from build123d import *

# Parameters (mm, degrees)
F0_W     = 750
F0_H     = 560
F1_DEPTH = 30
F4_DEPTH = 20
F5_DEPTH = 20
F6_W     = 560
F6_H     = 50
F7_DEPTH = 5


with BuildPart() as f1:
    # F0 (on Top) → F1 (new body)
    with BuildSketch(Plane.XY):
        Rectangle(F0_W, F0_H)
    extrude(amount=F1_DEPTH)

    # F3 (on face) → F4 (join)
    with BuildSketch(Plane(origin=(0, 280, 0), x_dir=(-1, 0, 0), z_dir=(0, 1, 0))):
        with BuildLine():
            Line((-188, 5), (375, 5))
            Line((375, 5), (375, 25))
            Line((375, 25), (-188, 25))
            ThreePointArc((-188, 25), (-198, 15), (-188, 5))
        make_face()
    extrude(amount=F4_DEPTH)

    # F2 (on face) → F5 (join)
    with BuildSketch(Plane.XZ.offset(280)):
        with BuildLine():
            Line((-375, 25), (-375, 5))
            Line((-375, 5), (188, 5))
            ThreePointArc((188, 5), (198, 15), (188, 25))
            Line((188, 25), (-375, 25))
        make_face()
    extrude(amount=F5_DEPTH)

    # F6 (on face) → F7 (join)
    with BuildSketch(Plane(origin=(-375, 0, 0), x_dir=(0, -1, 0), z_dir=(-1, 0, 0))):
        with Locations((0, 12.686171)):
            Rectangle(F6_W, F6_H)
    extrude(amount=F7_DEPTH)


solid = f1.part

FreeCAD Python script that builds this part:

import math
import FreeCAD as App
import Part
import Sketcher

doc = App.newDocument("Part")
params = doc.addObject("Spreadsheet::Sheet", "Params")
for row, (alias, value) in enumerate([
    ("sketch1_width", "750 mm"),
    ("sketch1_height", "560 mm"),
    ("pad1_length", "30 mm"),
    ("sketch2_radius", "10 mm"),
    ("sketch2_width", "563 mm"),
    ("pad2_length", "20 mm"),
    ("sketch3_radius", "10 mm"),
    ("sketch3_width", "563 mm"),
    ("pad3_length", "20 mm"),
    ("sketch4_width", "560 mm"),
    ("sketch4_height", "50 mm"),
    ("pad4_length", "5 mm"),
], start=1):
    params.set(f"A{row}", alias)
    params.set(f"B{row}", "=" + value)
    params.setAlias(f"B{row}", alias)

body = doc.addObject("PartDesign::Body", "Body")

# Sketch on XY plane
sketch1 = doc.addObject("Sketcher::SketchObject", "Sketch")
body.addObject(sketch1)
sketch1.AttachmentSupport = (doc.XY_Plane, [""])
sketch1.MapMode = "FlatFace"
sketch1.addGeometry([
    Part.LineSegment(App.Vector(-375, 280, 0), App.Vector(-375, -280, 0)),
    Part.LineSegment(App.Vector(-375, -280, 0), App.Vector(375, -280, 0)),
    Part.LineSegment(App.Vector(375, -280, 0), App.Vector(375, 280, 0)),
    Part.LineSegment(App.Vector(375, 280, 0), App.Vector(-375, 280, 0)),
], False)
sketch1.addConstraint([
    Sketcher.Constraint("Coincident", 0, 2, 1, 1),
    Sketcher.Constraint("Coincident", 1, 2, 2, 1),
    Sketcher.Constraint("Coincident", 2, 2, 3, 1),
    Sketcher.Constraint("Coincident", 3, 2, 0, 1),
    Sketcher.Constraint("Vertical", 0),
    Sketcher.Constraint("Horizontal", 1),
    Sketcher.Constraint("Vertical", 2),
    Sketcher.Constraint("Horizontal", 3),
    Sketcher.Constraint("Symmetric", 0, 2, 2, 2, -1, 1),
    Sketcher.Constraint("DistanceX", 1, 1, 1, 2, 750.0),
    Sketcher.Constraint("DistanceY", 0, 2, 0, 1, 560.0),
])
sketch1.setExpression("Constraints[9]", "Params.sketch1_width")
sketch1.setExpression("Constraints[10]", "Params.sketch1_height")
pad1 = doc.addObject("PartDesign::Pad", "Pad")
body.addObject(pad1)
pad1.Profile = sketch1
pad1.setExpression("Length", "Params.pad1_length")

# Sketch on XZ plane
sketch2 = doc.addObject("Sketcher::SketchObject", "Sketch001")
body.addObject(sketch2)
sketch2.AttachmentSupport = (doc.XZ_Plane, [""])
sketch2.MapMode = "FlatFace"
sketch2.AttachmentOffset = App.Placement(App.Vector(0, 0, -280), App.Rotation())
sketch2.addGeometry([
    Part.LineSegment(App.Vector(188, 5, 0), App.Vector(-375, 5, 0)),
    Part.LineSegment(App.Vector(-375, 5, 0), App.Vector(-375, 25, 0)),
    Part.LineSegment(App.Vector(-375, 25, 0), App.Vector(188, 25, 0)),
    Part.ArcOfCircle(Part.Circle(App.Vector(188, 15, 0), App.Vector(0, 0, 1), 10), math.radians(-90), math.radians(90)),
], False)
sketch2.addConstraint([
    Sketcher.Constraint("Coincident", 0, 2, 1, 1),
    Sketcher.Constraint("Coincident", 1, 2, 2, 1),
    Sketcher.Constraint("Tangent", 2, 2, 3, 2),
    Sketcher.Constraint("Tangent", 3, 1, 0, 1),
    Sketcher.Constraint("Horizontal", 0),
    Sketcher.Constraint("Vertical", 1),
    Sketcher.Constraint("Horizontal", 2),
    Sketcher.Constraint("Radius", 3, 10.0),
    Sketcher.Constraint("DistanceX", 0, 2, 0, 1, 563.0),
    Sketcher.Constraint("DistanceX", -1, 1, 3, 3, 188.0),
    Sketcher.Constraint("DistanceY", -1, 1, 3, 3, 15.0),
])
sketch2.setExpression("Constraints[7]", "Params.sketch2_radius")
sketch2.setExpression("Constraints[8]", "Params.sketch2_width")
pad2 = doc.addObject("PartDesign::Pad", "Pad001")
body.addObject(pad2)
pad2.Profile = sketch2
pad2.setExpression("Length", "Params.pad2_length")
pad2.Reversed = True

# Sketch on XZ plane
sketch3 = doc.addObject("Sketcher::SketchObject", "Sketch002")
body.addObject(sketch3)
sketch3.AttachmentSupport = (doc.XZ_Plane, [""])
sketch3.MapMode = "FlatFace"
sketch3.AttachmentOffset = App.Placement(App.Vector(0, 0, 280), App.Rotation())
sketch3.addGeometry([
    Part.LineSegment(App.Vector(-375, 25, 0), App.Vector(-375, 5, 0)),
    Part.LineSegment(App.Vector(-375, 5, 0), App.Vector(188, 5, 0)),
    Part.ArcOfCircle(Part.Circle(App.Vector(188, 15, 0), App.Vector(0, 0, 1), 10), math.radians(-90), math.radians(90)),
    Part.LineSegment(App.Vector(188, 25, 0), App.Vector(-375, 25, 0)),
], False)
sketch3.addConstraint([
    Sketcher.Constraint("Coincident", 0, 2, 1, 1),
    Sketcher.Constraint("Tangent", 1, 2, 2, 1),
    Sketcher.Constraint("Tangent", 2, 2, 3, 1),
    Sketcher.Constraint("Coincident", 3, 2, 0, 1),
    Sketcher.Constraint("Vertical", 0),
    Sketcher.Constraint("Horizontal", 1),
    Sketcher.Constraint("Horizontal", 3),
    Sketcher.Constraint("Radius", 2, 10.0),
    Sketcher.Constraint("DistanceX", 1, 1, 1, 2, 563.0),
    Sketcher.Constraint("DistanceX", -1, 1, 2, 3, 188.0),
    Sketcher.Constraint("DistanceY", -1, 1, 2, 3, 15.0),
])
sketch3.setExpression("Constraints[7]", "Params.sketch3_radius")
sketch3.setExpression("Constraints[8]", "Params.sketch3_width")
pad3 = doc.addObject("PartDesign::Pad", "Pad002")
body.addObject(pad3)
pad3.Profile = sketch3
pad3.setExpression("Length", "Params.pad3_length")

# Sketch on YZ plane
sketch4 = doc.addObject("Sketcher::SketchObject", "Sketch003")
body.addObject(sketch4)
sketch4.AttachmentSupport = (doc.YZ_Plane, [""])
sketch4.MapMode = "FlatFace"
sketch4.AttachmentOffset = App.Placement(App.Vector(0, 0, -375), App.Rotation())
sketch4.addGeometry([
    Part.LineSegment(App.Vector(280, 38, 0), App.Vector(280, -12, 0)),
    Part.LineSegment(App.Vector(280, -12, 0), App.Vector(-280, -12, 0)),
    Part.LineSegment(App.Vector(-280, -12, 0), App.Vector(-280, 38, 0)),
    Part.LineSegment(App.Vector(-280, 38, 0), App.Vector(280, 38, 0)),
], False)
sketch4.addConstraint([
    Sketcher.Constraint("Coincident", 0, 2, 1, 1),
    Sketcher.Constraint("Coincident", 1, 2, 2, 1),
    Sketcher.Constraint("Coincident", 2, 2, 3, 1),
    Sketcher.Constraint("Coincident", 3, 2, 0, 1),
    Sketcher.Constraint("Vertical", 0),
    Sketcher.Constraint("Horizontal", 1),
    Sketcher.Constraint("Vertical", 2),
    Sketcher.Constraint("Horizontal", 3),
    Sketcher.Constraint("DistanceX", 1, 2, 1, 1, 560.0),
    Sketcher.Constraint("DistanceY", 0, 2, 0, 1, 50.0),
    Sketcher.Constraint("DistanceX", -1, 1, 0, 2, 280.0),
    Sketcher.Constraint("DistanceY", 0, 2, -1, 1, 12.313829),
])
sketch4.setExpression("Constraints[8]", "Params.sketch4_width")
sketch4.setExpression("Constraints[9]", "Params.sketch4_height")
pad4 = doc.addObject("PartDesign::Pad", "Pad003")
body.addObject(pad4)
pad4.Profile = sketch4
pad4.setExpression("Length", "Params.pad4_length")
pad4.Reversed = True

doc.recompute()
